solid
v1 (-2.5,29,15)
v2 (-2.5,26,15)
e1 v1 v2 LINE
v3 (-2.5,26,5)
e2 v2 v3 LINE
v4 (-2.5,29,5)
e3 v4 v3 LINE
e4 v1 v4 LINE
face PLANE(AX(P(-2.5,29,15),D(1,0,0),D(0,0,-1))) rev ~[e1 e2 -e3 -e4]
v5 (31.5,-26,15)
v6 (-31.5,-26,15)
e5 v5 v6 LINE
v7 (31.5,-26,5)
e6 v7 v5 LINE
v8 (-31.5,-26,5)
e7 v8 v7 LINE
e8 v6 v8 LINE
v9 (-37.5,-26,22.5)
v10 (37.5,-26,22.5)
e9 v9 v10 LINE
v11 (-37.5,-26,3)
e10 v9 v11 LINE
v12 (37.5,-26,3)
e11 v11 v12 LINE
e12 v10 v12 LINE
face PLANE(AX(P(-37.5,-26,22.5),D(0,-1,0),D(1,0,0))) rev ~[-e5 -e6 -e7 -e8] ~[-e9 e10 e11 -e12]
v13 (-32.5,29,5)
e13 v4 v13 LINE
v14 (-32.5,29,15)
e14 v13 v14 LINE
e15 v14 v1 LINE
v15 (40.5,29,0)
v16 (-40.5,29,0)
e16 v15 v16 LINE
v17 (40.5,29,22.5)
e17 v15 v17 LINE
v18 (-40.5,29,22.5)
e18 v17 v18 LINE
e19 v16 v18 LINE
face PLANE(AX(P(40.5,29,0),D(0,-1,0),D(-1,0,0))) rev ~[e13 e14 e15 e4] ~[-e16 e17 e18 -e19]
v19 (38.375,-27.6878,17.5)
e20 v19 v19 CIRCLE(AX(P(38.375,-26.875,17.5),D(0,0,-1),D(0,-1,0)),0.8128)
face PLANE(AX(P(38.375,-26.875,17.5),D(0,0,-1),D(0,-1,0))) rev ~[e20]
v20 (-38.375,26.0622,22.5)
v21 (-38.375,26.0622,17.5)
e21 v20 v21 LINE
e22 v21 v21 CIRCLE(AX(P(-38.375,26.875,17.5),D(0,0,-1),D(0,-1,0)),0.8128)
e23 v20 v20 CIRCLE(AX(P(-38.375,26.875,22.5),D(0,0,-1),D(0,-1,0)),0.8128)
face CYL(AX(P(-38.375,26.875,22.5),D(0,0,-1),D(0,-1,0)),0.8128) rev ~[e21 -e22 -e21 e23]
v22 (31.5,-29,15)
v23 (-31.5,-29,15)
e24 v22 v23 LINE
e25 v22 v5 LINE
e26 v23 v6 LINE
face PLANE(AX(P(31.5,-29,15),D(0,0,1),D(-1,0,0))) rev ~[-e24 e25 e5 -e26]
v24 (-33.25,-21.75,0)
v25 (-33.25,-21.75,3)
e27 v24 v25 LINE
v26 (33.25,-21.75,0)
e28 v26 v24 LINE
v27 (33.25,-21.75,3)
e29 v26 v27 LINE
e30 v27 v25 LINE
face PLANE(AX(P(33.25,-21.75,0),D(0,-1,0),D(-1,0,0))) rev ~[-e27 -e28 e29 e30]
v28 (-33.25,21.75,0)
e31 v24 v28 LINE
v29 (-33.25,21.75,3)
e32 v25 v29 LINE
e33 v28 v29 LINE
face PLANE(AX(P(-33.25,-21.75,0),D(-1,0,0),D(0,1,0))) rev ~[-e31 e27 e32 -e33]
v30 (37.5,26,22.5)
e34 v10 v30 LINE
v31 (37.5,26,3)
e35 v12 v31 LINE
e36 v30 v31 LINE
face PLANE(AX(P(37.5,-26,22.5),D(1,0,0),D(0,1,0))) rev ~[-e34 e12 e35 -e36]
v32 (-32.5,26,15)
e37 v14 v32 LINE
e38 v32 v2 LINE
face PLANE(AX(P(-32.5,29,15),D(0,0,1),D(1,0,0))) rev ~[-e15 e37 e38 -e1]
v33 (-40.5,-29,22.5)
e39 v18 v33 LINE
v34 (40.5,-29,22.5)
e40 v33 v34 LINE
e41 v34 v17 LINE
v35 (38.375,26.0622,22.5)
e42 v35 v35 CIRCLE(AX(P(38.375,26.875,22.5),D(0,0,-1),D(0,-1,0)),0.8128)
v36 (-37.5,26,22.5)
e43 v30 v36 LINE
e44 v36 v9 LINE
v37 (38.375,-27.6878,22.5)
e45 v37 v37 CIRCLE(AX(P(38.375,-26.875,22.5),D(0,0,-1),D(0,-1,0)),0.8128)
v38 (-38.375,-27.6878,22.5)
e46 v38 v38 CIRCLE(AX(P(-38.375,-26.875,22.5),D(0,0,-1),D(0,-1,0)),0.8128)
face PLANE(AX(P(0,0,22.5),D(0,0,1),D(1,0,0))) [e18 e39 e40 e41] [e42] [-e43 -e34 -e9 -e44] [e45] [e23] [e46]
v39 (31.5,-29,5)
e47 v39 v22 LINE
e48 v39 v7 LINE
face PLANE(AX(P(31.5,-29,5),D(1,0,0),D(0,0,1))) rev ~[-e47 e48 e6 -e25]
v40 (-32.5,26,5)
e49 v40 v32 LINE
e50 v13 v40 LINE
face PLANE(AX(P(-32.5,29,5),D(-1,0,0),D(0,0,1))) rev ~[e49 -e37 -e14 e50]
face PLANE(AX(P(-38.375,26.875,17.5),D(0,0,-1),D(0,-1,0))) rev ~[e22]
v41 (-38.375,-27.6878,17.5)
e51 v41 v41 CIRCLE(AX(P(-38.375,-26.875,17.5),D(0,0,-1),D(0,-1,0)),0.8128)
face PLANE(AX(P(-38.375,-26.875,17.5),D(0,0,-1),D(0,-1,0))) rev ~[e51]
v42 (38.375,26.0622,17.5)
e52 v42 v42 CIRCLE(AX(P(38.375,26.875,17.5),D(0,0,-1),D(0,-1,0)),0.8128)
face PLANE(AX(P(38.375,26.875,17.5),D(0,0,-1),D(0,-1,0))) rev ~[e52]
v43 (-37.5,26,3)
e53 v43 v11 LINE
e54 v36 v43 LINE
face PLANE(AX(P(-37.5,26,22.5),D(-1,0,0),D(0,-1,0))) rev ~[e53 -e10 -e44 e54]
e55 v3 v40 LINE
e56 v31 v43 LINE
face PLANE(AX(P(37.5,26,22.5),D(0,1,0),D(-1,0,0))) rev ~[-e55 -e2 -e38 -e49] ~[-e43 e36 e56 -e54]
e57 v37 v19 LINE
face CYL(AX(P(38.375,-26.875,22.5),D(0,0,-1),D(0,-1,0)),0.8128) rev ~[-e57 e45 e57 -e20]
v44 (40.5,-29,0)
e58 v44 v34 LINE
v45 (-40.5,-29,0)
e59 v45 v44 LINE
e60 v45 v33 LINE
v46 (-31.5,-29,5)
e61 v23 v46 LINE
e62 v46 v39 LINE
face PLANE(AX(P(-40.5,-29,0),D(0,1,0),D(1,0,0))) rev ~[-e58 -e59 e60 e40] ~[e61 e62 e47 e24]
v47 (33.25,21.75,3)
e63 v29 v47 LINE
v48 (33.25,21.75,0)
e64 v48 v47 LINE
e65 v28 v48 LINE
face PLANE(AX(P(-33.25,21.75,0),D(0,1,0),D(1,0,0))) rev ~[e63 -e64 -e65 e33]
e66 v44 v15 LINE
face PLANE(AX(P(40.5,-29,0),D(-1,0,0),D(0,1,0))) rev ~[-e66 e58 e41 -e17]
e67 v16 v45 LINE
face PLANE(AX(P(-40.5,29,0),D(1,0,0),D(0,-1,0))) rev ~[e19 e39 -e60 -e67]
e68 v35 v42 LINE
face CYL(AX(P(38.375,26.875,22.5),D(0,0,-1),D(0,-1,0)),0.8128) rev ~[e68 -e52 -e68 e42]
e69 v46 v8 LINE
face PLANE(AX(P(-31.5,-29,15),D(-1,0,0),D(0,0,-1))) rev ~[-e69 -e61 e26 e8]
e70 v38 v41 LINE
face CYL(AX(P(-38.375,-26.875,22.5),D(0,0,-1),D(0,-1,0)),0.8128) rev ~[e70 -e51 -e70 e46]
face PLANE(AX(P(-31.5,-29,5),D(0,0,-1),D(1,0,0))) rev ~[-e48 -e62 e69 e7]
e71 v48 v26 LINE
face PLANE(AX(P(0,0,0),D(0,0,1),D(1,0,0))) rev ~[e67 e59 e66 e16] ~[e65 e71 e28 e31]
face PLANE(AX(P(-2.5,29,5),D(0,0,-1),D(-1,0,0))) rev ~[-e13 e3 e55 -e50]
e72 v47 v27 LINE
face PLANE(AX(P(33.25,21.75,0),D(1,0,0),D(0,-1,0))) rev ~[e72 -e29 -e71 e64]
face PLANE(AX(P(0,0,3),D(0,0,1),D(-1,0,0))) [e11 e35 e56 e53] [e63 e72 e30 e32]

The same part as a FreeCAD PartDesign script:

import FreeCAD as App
import Part
import Sketcher

V = App.Vector
Q = App.Units.Quantity


def add_polygon(sketch, points):
    """Adds a closed chain of lines whose ends are joined by coincident constraints."""
    first, n = sketch.GeometryCount, len(points)
    for a, b in zip(points, points[1:] + points[:1]):
        sketch.addGeometry(Part.LineSegment(App.Vector(*a, 0), App.Vector(*b, 0)), False)
    for i in range(n):
        sketch.addConstraint(Sketcher.Constraint("Coincident", first + i, 2, first + (i + 1) % n, 1))

doc = App.newDocument("Part")
body = doc.addObject("PartDesign::Body", "Body")

sketch1 = body.newObject("Sketcher::SketchObject", "Sketch")
sketch1.AttachmentSupport = (doc.getObject("XY_Plane"), [""])
sketch1.MapMode = "FlatFace"
add_polygon(sketch1, [(40, -29), (40, 29), (-40, 29), (-40, -29)])
sketch1.addConstraint([
    Sketcher.Constraint("Vertical", 0),
    Sketcher.Constraint("Horizontal", 1),
    Sketcher.Constraint("Vertical", 2),
    Sketcher.Constraint("Horizontal", 3),
    Sketcher.Constraint("Symmetric", 0, 2, 2, 2, -1, 1),
    Sketcher.Constraint("DistanceX", 1, 2, 1, 1, Q("81 mm")),
    Sketcher.Constraint("DistanceY", 0, 1, 0, 2, Q("58 mm")),
])
pad1 = body.newObject("PartDesign::Pad", "Pad")
pad1.Profile = sketch1
pad1.Length = 22.5

sketch2 = body.newObject("Sketcher::SketchObject", "Sketch001")
sketch2.AttachmentSupport = (doc.getObject("XY_Plane"), [""])
sketch2.MapMode = "FlatFace"
sketch2.AttachmentOffset = App.Placement(V(0, 0, 22.5), App.Rotation())
add_polygon(sketch2, [(38, -26), (38, 26), (-38, 26), (-38, -26)])
sketch2.addConstraint([
    Sketcher.Constraint("Vertical", 0),
    Sketcher.Constraint("Horizontal", 1),
    Sketcher.Constraint("Vertical", 2),
    Sketcher.Constraint("Horizontal", 3),
    Sketcher.Constraint("Symmetric", 0, 2, 2, 2, -1, 1),
    Sketcher.Constraint("DistanceX", 1, 2, 1, 1, Q("75 mm")),
    Sketcher.Constraint("DistanceY", 0, 1, 0, 2, Q("52 mm")),
])
pocket1 = body.newObject("PartDesign::Pocket", "Pocket")
pocket1.Profile = sketch2
pocket1.Length = 19.5

sketch3 = body.newObject("Sketcher::SketchObject", "Sketch002")
sketch3.AttachmentSupport = (doc.getObject("XY_Plane"), [""])
sketch3.MapMode = "FlatFace"
add_polygon(sketch3, [(33, 22), (33, -22), (-33, -22), (-33, 22)])
sketch3.addConstraint([
    Sketcher.Constraint("Vertical", 0),
    Sketcher.Constraint("Horizontal", 1),
    Sketcher.Constraint("Vertical", 2),
    Sketcher.Constraint("Horizontal", 3),
    Sketcher.Constraint("Symmetric", 0, 2, 2, 2, -1, 1),
    Sketcher.Constraint("DistanceX", 1, 2, 1, 1, Q("66.5 mm")),
    Sketcher.Constraint("DistanceY", 0, 2, 0, 1, Q("43.5 mm")),
])
pocket2 = body.newObject("PartDesign::Pocket", "Pocket001")
pocket2.Profile = sketch3
pocket2.Length = 3
pocket2.Reversed = True

sketch4 = body.newObject("Sketcher::SketchObject", "Sketch003")
sketch4.AttachmentSupport = (doc.getObject("XZ_Plane"), [""])
sketch4.MapMode = "FlatFace"
sketch4.AttachmentOffset = App.Placement(V(0, 0, 29), App.Rotation())
add_polygon(sketch4, [(32, 5), (32, 15), (-32, 15), (-32, 5)])
sketch4.addConstraint([
    Sketcher.Constraint("Vertical", 0),
    Sketcher.Constraint("Horizontal", 1),
    Sketcher.Constraint("Vertical", 2),
    Sketcher.Constraint("Horizontal", 3),
    Sketcher.Constraint("DistanceX", 1, 2, 1, 1, Q("63 mm")),
    Sketcher.Constraint("DistanceY", 0, 1, 0, 2, Q("10 mm")),
    Sketcher.Constraint("DistanceY", -1, 1, 0, 2, Q("15 mm")),
    Sketcher.Constraint("DistanceX", -1, 1, 0, 2, Q("31.5 mm")),
])
pocket3 = body.newObject("PartDesign::Pocket", "Pocket002")
pocket3.Profile = sketch4
pocket3.Length = 3

sketch5 = body.newObject("Sketcher::SketchObject", "Sketch004")
sketch5.AttachmentSupport = (doc.getObject("XZ_Plane"), [""])
sketch5.MapMode = "FlatFace"
sketch5.AttachmentOffset = App.Placement(V(0, 0, -29), App.Rotation())
add_polygon(sketch5, [(-32, 5), (-32, 15), (-2, 15), (-2, 5)])
sketch5.addConstraint([
    Sketcher.Constraint("Vertical", 0),
    Sketcher.Constraint("Horizontal", 1),
    Sketcher.Constraint("Vertical", 2),
    Sketcher.Constraint("Horizontal", 3),
    Sketcher.Constraint("DistanceX", 1, 1, 1, 2, Q("30 mm")),
    Sketcher.Constraint("DistanceY", 0, 1, 0, 2, Q("10 mm")),
    Sketcher.Constraint("DistanceY", -1, 1, 0, 2, Q("15 mm")),
    Sketcher.Constraint("DistanceX", 0, 2, -1, 1, Q("32.5 mm")),
])
pocket4 = body.newObject("PartDesign::Pocket", "Pocket003")
pocket4.Profile = sketch5
pocket4.Length = 3
pocket4.Reversed = True

sketch6 = body.newObject("Sketcher::SketchObject", "Sketch005")
sketch6.AttachmentSupport = (doc.getObject("XY_Plane"), [""])
sketch6.MapMode = "FlatFace"
sketch6.AttachmentOffset = App.Placement(V(0, 0, 22.5), App.Rotation())
sketch6.addGeometry([
    Part.Circle(V(-38.4, 26.9, 0), V(0, 0, 1), 0.8),
    Part.Circle(V(38.4, 26.9, 0), V(0, 0, 1), 0.8),
    Part.Circle(V(38.4, -26.9, 0), V(0, 0, 1), 0.8),
    Part.Circle(V(-38.4, -26.9, 0), V(0, 0, 1), 0.8),
], False)
sketch6.addConstraint([
    Sketcher.Constraint("Equal", 0, 1),
    Sketcher.Constraint("Equal", 1, 2),
    Sketcher.Constraint("Equal", 2, 3),
    Sketcher.Constraint("Symmetric", 0, 3, 2, 3, -1, 1),
    Sketcher.Constraint("Symmetric", 1, 3, 3, 3, -1, 1),
    Sketcher.Constraint("Symmetric", 0, 3, 1, 3, -2),
    Sketcher.Constraint("Diameter", 0, Q("1.6256 mm")),
    Sketcher.Constraint("DistanceX", 0, 3, 1, 3, Q("76.75 mm")),
    Sketcher.Constraint("DistanceY", 2, 3, 1, 3, Q("53.75 mm")),
])
doc.recompute()
hole = body.newObject("PartDesign::Hole", "Hole")
hole.Profile = sketch6
hole.ThreadType = "None"
hole.Diameter = 1.6256
hole.DepthType = "Dimension"
hole.Depth = 5
hole.DrillPoint = "Flat"

doc.recompute()
